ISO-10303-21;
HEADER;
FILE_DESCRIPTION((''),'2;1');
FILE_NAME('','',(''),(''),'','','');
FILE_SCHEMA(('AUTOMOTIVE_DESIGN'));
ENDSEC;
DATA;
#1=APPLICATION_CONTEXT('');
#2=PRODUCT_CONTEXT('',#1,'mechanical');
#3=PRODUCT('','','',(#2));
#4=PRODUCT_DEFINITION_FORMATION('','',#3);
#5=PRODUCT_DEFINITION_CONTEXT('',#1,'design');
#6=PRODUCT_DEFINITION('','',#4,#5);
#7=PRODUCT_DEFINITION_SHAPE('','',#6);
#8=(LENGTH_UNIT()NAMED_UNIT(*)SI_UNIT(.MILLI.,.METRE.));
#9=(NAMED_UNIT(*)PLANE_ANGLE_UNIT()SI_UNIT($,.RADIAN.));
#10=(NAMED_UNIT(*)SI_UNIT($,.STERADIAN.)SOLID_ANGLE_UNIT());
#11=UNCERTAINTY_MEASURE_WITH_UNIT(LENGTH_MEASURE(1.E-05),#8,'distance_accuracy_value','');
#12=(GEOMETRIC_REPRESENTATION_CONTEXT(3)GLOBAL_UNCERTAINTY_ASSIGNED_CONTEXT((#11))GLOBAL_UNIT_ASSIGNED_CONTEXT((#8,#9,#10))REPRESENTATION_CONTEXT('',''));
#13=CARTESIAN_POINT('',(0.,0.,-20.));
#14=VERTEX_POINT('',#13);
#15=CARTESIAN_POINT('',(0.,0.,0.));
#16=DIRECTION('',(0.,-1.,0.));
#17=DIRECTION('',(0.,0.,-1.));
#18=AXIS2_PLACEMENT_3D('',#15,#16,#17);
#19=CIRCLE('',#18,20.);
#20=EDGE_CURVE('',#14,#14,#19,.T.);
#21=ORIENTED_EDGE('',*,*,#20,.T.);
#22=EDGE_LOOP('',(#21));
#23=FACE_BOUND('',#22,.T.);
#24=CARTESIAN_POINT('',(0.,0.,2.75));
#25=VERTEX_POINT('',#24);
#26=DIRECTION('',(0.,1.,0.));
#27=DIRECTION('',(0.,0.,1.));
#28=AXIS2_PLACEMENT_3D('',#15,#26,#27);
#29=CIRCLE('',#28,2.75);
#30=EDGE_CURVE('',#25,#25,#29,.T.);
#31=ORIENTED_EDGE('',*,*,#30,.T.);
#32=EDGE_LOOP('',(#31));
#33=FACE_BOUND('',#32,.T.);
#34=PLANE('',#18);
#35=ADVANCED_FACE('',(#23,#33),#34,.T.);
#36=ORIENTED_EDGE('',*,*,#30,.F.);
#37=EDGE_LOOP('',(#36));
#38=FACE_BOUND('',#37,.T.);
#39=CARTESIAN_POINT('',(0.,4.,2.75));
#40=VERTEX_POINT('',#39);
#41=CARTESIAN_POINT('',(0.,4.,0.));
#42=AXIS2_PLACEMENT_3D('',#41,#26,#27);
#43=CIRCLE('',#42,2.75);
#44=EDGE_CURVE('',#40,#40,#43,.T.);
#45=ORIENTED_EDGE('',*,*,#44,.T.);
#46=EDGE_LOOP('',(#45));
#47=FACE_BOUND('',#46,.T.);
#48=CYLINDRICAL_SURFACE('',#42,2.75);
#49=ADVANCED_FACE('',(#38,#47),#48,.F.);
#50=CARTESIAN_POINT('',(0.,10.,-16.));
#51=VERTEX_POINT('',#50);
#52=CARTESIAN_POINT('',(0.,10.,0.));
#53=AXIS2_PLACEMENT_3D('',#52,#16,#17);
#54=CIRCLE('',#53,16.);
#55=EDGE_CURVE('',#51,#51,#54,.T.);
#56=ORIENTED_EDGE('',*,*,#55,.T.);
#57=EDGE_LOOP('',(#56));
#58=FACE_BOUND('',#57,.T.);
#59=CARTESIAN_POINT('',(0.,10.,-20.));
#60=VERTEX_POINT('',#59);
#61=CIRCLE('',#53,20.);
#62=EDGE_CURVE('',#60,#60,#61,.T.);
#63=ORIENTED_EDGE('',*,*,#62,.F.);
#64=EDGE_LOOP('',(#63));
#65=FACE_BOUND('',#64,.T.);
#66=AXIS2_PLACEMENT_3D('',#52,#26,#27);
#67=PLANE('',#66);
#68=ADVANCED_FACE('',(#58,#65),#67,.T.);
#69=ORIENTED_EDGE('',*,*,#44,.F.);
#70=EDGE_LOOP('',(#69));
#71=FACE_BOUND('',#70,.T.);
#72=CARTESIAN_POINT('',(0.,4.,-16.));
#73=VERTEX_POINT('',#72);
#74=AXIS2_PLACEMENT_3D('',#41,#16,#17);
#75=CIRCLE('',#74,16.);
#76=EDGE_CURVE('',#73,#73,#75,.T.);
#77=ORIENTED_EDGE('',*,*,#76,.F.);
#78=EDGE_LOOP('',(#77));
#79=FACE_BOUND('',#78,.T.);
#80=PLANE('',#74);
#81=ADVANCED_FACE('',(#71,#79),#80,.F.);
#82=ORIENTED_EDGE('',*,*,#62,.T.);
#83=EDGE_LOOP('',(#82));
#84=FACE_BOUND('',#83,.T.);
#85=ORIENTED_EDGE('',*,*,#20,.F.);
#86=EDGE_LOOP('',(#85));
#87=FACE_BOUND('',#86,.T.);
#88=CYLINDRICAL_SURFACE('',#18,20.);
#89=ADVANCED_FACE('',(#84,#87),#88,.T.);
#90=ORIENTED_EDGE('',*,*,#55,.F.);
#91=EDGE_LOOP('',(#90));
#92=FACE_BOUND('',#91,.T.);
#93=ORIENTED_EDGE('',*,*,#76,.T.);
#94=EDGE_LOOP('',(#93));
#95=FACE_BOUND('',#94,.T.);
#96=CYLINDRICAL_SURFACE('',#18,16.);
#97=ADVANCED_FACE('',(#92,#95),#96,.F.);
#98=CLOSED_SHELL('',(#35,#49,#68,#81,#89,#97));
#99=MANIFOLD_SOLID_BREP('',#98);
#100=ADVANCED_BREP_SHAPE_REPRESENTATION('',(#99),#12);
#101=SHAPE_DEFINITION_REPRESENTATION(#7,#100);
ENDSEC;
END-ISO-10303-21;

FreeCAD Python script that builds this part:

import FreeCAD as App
import Part
import Sketcher
from FreeCAD import Vector


def add_polygon(sketch, points):
    """Adds a closed chain of lines whose ends are joined by coincident constraints."""
    first, n = sketch.GeometryCount, len(points)
    for a, b in zip(points, points[1:] + points[:1]):
        sketch.addGeometry(Part.LineSegment(App.Vector(*a, 0), App.Vector(*b, 0)), False)
    for i in range(n):
        sketch.addConstraint(Sketcher.Constraint("Coincident", first + i, 2, first + (i + 1) % n, 1))

doc = App.newDocument("Part")
params = doc.addObject("Spreadsheet::Sheet", "Params")
for row, (alias, value) in enumerate([
    ("sketch1_width", "16 mm"),
    ("sketch1_width2", "4 mm"),
    ("sketch1_height", "6 mm"),
    ("revolution_angle", "360 deg"),
    ("sketch2_diameter", "5.5 mm"),
    ("hole_diameter", "5.5 mm"),
], start=1):
    params.set(f"A{row}", alias)
    params.set(f"B{row}", "=" + value)
    params.setAlias(f"B{row}", alias)

body = doc.addObject("PartDesign::Body", "Body")

sketch1 = body.newObject("Sketcher::SketchObject", "Sketch")
sketch1.AttachmentSupport = (doc.getObject("XY_Plane"), [""])
sketch1.MapMode = "FlatFace"
add_polygon(sketch1, [(0, 0), (0, 4), (-16, 4), (-16, 10), (-20, 10), (-20, 0)])
sketch1.addConstraint([
    Sketcher.Constraint("Vertical", 0),
    Sketcher.Constraint("Horizontal", 1),
    Sketcher.Constraint("Vertical", 2),
    Sketcher.Constraint("Horizontal", 3),
    Sketcher.Constraint("Vertical", 4),
    Sketcher.Constraint("Horizontal", 5),
    Sketcher.Constraint("Coincident", 5, 2, -1, 1),
    Sketcher.Constraint("Equal", 3, 0),
    Sketcher.Constraint("DistanceX", 1, 2, 1, 1, 16.0),
    Sketcher.Constraint("DistanceX", 3, 2, 3, 1, 4.0),
    Sketcher.Constraint("DistanceY", 2, 1, 2, 2, 6.0),
])
sketch1.setExpression("Constraints[14]", "Params.sketch1_width")
sketch1.setExpression("Constraints[15]", "Params.sketch1_width2")
sketch1.setExpression("Constraints[16]", "Params.sketch1_height")
revolution = body.newObject("PartDesign::Revolution", "Revolution")
revolution.Profile = sketch1
revolution.ReferenceAxis = (sketch1, ["V_Axis"])
revolution.setExpression("Angle", "Params.revolution_angle")

sketch2 = body.newObject("Sketcher::SketchObject", "Sketch001")
sketch2.AttachmentSupport = (doc.getObject("XZ_Plane"), [""])
sketch2.MapMode = "FlatFace"
sketch2.AttachmentOffset = App.Placement(Vector(0, 0, -4), App.Rotation())
sketch2.addGeometry(Part.Circle(Vector(0, 0, 0), Vector(0, 0, 1), 2.8), False)
sketch2.addConstraint([
    Sketcher.Constraint("Coincident", 0, 3, -1, 1),
    Sketcher.Constraint("Diameter", 0, 5.5),
])
sketch2.setExpression("Constraints[1]", "Params.sketch2_diameter")
doc.recompute()
hole = body.newObject("PartDesign::Hole", "Hole")
hole.Profile = sketch2
hole.ThreadType = "None"
hole.setExpression("Diameter", "Params.hole_diameter")
hole.DepthType = "ThroughAll"
hole.Reversed = True

doc.recompute()
